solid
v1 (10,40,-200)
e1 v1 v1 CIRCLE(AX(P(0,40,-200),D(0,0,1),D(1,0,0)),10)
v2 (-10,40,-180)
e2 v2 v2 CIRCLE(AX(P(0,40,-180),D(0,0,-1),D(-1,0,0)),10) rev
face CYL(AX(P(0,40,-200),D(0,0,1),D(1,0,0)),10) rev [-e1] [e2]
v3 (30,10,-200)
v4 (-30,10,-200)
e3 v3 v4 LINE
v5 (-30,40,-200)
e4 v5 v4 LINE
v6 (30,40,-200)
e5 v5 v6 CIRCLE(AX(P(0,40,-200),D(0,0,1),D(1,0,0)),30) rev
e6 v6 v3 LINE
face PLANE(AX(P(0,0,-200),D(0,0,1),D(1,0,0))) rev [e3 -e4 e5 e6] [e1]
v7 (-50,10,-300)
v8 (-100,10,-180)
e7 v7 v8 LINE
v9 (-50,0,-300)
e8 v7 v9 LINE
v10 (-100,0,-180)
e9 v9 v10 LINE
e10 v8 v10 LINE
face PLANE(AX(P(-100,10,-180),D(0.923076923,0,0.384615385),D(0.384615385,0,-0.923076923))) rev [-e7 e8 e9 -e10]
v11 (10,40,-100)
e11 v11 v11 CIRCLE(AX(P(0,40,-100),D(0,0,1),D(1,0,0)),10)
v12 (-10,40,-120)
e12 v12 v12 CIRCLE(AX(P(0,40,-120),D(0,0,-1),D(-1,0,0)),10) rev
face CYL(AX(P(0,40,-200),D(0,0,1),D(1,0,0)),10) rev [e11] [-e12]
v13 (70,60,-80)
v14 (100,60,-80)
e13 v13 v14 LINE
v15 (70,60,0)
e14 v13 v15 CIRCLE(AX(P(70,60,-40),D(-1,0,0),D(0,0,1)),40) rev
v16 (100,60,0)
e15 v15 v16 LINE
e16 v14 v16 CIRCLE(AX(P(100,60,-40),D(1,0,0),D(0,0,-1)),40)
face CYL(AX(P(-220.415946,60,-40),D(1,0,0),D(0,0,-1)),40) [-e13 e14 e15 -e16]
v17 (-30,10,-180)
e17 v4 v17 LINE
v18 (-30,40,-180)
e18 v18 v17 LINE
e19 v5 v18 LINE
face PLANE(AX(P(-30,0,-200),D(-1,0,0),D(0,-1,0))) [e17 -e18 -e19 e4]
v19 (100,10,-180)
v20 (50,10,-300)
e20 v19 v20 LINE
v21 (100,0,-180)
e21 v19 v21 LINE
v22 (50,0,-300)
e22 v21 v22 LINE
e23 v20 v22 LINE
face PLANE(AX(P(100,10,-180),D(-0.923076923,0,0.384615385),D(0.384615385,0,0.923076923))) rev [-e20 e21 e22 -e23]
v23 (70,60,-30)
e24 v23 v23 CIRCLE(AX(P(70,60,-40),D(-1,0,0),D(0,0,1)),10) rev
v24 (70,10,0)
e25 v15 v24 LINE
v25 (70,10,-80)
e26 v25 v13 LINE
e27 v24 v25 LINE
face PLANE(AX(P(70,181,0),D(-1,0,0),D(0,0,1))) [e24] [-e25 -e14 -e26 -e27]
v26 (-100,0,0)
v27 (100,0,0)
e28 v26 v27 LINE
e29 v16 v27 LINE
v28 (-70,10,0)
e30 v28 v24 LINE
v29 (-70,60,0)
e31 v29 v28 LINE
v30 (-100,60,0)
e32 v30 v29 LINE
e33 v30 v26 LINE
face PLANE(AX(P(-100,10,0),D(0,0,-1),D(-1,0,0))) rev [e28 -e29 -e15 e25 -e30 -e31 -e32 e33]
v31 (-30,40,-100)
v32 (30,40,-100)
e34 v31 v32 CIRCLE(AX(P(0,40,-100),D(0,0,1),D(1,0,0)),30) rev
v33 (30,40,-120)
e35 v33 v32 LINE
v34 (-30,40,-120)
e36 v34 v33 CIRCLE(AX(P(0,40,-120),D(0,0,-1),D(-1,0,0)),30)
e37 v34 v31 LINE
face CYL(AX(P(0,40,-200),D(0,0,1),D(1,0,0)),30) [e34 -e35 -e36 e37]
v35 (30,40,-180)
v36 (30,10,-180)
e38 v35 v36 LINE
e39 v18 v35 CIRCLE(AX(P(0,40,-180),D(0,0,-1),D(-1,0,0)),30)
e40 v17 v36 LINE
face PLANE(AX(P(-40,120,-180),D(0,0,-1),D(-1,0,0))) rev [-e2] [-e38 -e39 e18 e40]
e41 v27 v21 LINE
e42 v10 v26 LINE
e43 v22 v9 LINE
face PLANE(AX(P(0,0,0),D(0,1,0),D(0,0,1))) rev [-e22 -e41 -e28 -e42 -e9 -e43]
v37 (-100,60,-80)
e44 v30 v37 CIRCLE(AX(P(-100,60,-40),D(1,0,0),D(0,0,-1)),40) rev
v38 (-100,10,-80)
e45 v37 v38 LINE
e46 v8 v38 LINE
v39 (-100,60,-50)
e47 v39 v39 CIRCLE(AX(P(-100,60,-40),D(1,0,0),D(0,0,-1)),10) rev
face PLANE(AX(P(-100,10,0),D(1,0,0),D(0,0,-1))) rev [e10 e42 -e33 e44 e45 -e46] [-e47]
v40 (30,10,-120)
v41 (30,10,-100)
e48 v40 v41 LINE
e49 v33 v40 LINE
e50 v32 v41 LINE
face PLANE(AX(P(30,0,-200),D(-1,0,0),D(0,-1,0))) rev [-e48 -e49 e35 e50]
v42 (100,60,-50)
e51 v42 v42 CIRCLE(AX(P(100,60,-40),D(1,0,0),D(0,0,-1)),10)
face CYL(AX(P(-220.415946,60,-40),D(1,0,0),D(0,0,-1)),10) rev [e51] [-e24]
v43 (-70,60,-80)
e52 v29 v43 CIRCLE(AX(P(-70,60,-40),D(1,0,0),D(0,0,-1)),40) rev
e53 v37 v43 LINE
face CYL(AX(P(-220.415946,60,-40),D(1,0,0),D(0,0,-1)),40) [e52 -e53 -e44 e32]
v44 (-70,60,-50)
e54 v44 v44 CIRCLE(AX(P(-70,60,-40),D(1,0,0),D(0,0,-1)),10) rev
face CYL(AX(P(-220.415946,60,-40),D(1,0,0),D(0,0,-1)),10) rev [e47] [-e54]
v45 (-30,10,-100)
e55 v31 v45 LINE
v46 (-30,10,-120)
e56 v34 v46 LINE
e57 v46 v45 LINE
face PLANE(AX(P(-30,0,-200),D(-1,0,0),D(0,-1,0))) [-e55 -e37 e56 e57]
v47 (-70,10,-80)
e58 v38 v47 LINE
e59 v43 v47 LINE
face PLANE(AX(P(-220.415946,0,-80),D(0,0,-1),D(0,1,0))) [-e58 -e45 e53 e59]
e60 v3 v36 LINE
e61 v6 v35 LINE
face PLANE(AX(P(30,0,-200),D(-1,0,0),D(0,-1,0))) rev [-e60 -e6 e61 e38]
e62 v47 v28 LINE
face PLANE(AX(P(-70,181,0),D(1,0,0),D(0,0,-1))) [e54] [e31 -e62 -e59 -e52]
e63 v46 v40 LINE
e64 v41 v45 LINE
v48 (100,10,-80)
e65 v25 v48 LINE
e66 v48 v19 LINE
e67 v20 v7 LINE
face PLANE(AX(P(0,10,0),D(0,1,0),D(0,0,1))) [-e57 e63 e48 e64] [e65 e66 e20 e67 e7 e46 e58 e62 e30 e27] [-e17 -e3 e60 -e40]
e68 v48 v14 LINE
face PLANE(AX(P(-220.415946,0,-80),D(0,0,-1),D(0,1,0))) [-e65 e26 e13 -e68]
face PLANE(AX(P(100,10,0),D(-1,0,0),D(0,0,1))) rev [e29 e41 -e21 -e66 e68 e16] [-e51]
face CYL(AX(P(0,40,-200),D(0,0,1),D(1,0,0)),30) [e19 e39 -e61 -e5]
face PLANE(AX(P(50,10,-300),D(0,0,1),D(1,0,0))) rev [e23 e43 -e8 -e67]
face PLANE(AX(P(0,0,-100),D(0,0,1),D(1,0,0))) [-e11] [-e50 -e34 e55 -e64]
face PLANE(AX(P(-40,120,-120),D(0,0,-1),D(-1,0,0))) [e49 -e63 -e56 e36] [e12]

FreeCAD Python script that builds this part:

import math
import FreeCAD as App
import Part
import Sketcher
from FreeCAD import Vector
Q = App.Units.Quantity


def add_polygon(sketch, points):
    """Adds a closed chain of lines whose ends are joined by coincident constraints."""
    first, n = sketch.GeometryCount, len(points)
    for a, b in zip(points, points[1:] + points[:1]):
        sketch.addGeometry(Part.LineSegment(App.Vector(*a, 0), App.Vector(*b, 0)), False)
    for i in range(n):
        sketch.addConstraint(Sketcher.Constraint("Coincident", first + i, 2, first + (i + 1) % n, 1))

doc = App.newDocument("Part")
params = doc.addObject("Spreadsheet::Sheet", "Params")
for row, (alias, value) in enumerate([
    ("sketch1_width", "200 mm"),
    ("sketch1_width2", "100 mm"),
    ("sketch1_height", "180 mm"),
    ("sketch1_length", "130 mm"),
    ("pad1_length", "10 mm"),
    ("sketch2_radius", "40 mm"),
    ("sketch2_radius2", "10 mm"),
    ("sketch2_width", "50 mm"),
    ("pad2_length", "200 mm"),
    ("sketch3_width", "140 mm"),
    ("sketch3_height", "100 mm"),
    ("pocket1_length", "171 mm"),
    ("sketch4_radius", "30 mm"),
    ("sketch4_radius2", "10 mm"),
    ("sketch4_height", "30 mm"),
    ("pad3_length", "100 mm"),
    ("sketch5_width", "80 mm"),
    ("sketch5_height", "60 mm"),
    ("pocket2_length", "110 mm"),
], start=1):
    params.set(f"A{row}", alias)
    params.set(f"B{row}", "=" + value)
    params.setAlias(f"B{row}", alias)

body = doc.addObject("PartDesign::Body", "Body")

# Sketch on XZ plane
sketch1 = doc.addObject("Sketcher::SketchObject", "Sketch")
body.addObject(sketch1)
sketch1.AttachmentSupport = (doc.XZ_Plane, [""])
sketch1.MapMode = "FlatFace"
add_polygon(sketch1, [(-100, 0), (100, 0), (100, -180), (50, -300), (-50, -300), (-100, -180)])  # lines 0-5
sketch1.addConstraint(Sketcher.Constraint("Horizontal", 0))
sketch1.addConstraint(Sketcher.Constraint("Vertical", 1))
sketch1.addConstraint(Sketcher.Constraint("Horizontal", 3))
sketch1.addConstraint(Sketcher.Constraint("Vertical", 5))
sketch1.addConstraint(Sketcher.Constraint("Symmetric", 0, 2, 5, 2, -1, 1))
sketch1.addConstraint(Sketcher.Constraint("Horizontal", 1, 2, 4, 2))
sketch1.addConstraint(Sketcher.Constraint("Equal", 2, 4))
sketch1.addConstraint(Sketcher.Constraint("DistanceX", 0, 1, 0, 2, Q("200 mm")))
sketch1.addConstraint(Sketcher.Constraint("DistanceX", 3, 2, 3, 1, Q("100 mm")))
sketch1.addConstraint(Sketcher.Constraint("DistanceY", 1, 2, 1, 1, Q("180 mm")))
sketch1.addConstraint(Sketcher.Constraint("Distance", 2, Q("130 mm")))
sketch1.setExpression("Constraints[13]", "Params.sketch1_width")
sketch1.setExpression("Constraints[14]", "Params.sketch1_width2")
sketch1.setExpression("Constraints[15]", "Params.sketch1_height")
sketch1.setExpression("Constraints[16]", "Params.sketch1_length")
pad1 = doc.addObject("PartDesign::Pad", "Pad")
body.addObject(pad1)
pad1.Profile = sketch1
pad1.setExpression("Length", "Params.pad1_length")
pad1.Reversed = True

# Sketch on YZ plane
sketch2 = doc.addObject("Sketcher::SketchObject", "Sketch001")
body.addObject(sketch2)
sketch2.AttachmentSupport = (doc.YZ_Plane, [""])
sketch2.MapMode = "FlatFace"
sketch2.AttachmentOffset = App.Placement(Vector(0, 0, 100), App.Rotation())
sketch2.addGeometry(Part.ArcOfCircle(Part.Circle(Vector(60, -40, 0), Vector(0, 0, 1), 40), math.radians(-90), math.radians(0)), False)
sketch2.addGeometry(Part.ArcOfCircle(Part.Circle(Vector(60, -40, 0), Vector(0, 0, 1), 40), math.radians(0), math.radians(90)), False)
sketch2.addGeometry(Part.LineSegment(Vector(60, 0, 0), Vector(10, 0, 0)), False)
sketch2.addGeometry(Part.LineSegment(Vector(10, 0, 0), Vector(10, -80, 0)), False)
sketch2.addGeometry(Part.LineSegment(Vector(10, -80, 0), Vector(60, -80, 0)), False)
sketch2.addGeometry(Part.ArcOfCircle(Part.Circle(Vector(60, -40, 0), Vector(0, 0, 1), 10), math.radians(-90), math.radians(0)), False)
sketch2.addGeometry(Part.ArcOfCircle(Part.Circle(Vector(60, -40, 0), Vector(0, 0, 1), 10), math.radians(180), math.radians(270)), False)
sketch2.addGeometry(Part.ArcOfCircle(Part.Circle(Vector(60, -40, 0), Vector(0, 0, 1), 10), math.radians(0), math.radians(180)), False)
sketch2.addConstraint(Sketcher.Constraint("Tangent", 0, 2, 1, 1))
sketch2.addConstraint(Sketcher.Constraint("Tangent", 1, 2, 2, 1))
sketch2.addConstraint(Sketcher.Constraint("Coincident", 2, 2, 3, 1))
sketch2.addConstraint(Sketcher.Constraint("Coincident", 3, 2, 4, 1))
sketch2.addConstraint(Sketcher.Constraint("Tangent", 4, 2, 0, 1))
sketch2.addConstraint(Sketcher.Constraint("Tangent", 5, 1, 6, 2))
sketch2.addConstraint(Sketcher.Constraint("Tangent", 6, 1, 7, 2))
sketch2.addConstraint(Sketcher.Constraint("Tangent", 7, 1, 5, 2))
sketch2.addConstraint(Sketcher.Constraint("Horizontal", 2))
sketch2.addConstraint(Sketcher.Constraint("Vertical", 3))
sketch2.addConstraint(Sketcher.Constraint("Horizontal", 4))
sketch2.addConstraint(Sketcher.Constraint("Coincident", 5, 3, 0, 3))
sketch2.addConstraint(Sketcher.Constraint("Equal", 0, 1))
sketch2.addConstraint(Sketcher.Constraint("PointOnObject", 1, 2, -1))
sketch2.addConstraint(Sketcher.Constraint("Horizontal", 7, 3, 0, 2))
sketch2.addConstraint(Sketcher.Constraint("Horizontal", 0, 2, 6, 1))
sketch2.addConstraint(Sketcher.Constraint("Horizontal", 6, 1, 7, 1))
sketch2.addConstraint(Sketcher.Constraint("Vertical", 4, 2, 5, 1))
sketch2.addConstraint(Sketcher.Constraint("Radius", 0, Q("40 mm")))
sketch2.addConstraint(Sketcher.Constraint("Radius", 5, Q("10 mm")))
sketch2.addConstraint(Sketcher.Constraint("DistanceX", 2, 2, 2, 1, Q("50 mm")))
sketch2.addConstraint(Sketcher.Constraint("DistanceX", -1, 1, 0, 3, Q("60 mm")))
sketch2.setExpression("Constraints[18]", "Params.sketch2_radius")
sketch2.setExpression("Constraints[19]", "Params.sketch2_radius2")
sketch2.setExpression("Constraints[20]", "Params.sketch2_width")
pad2 = doc.addObject("PartDesign::Pad", "Pad001")
body.addObject(pad2)
pad2.Profile = sketch2
pad2.setExpression("Length", "Params.pad2_length")
pad2.Reversed = True

# Sketch on XZ plane
sketch3 = doc.addObject("Sketcher::SketchObject", "Sketch002")
body.addObject(sketch3)
sketch3.AttachmentSupport = (doc.XZ_Plane, [""])
sketch3.MapMode = "FlatFace"
sketch3.AttachmentOffset = App.Placement(Vector(0, 0, -10), App.Rotation())
add_polygon(sketch3, [(-70, -100), (-70, 0), (70, 0), (70, -100)])  # lines 0-3
sketch3.addConstraint(Sketcher.Constraint("Vertical", 0))
sketch3.addConstraint(Sketcher.Constraint("Horizontal", 1))
sketch3.addConstraint(Sketcher.Constraint("Vertical", 2))
sketch3.addConstraint(Sketcher.Constraint("Horizontal", 3))
sketch3.addConstraint(Sketcher.Constraint("Symmetric", 0, 2, 1, 2, -1, 1))
sketch3.addConstraint(Sketcher.Constraint("DistanceX", 1, 1, 1, 2, Q("140 mm")))
sketch3.addConstraint(Sketcher.Constraint("DistanceY", 0, 1, 0, 2, Q("100 mm")))
sketch3.setExpression("Constraints[9]", "Params.sketch3_width")
sketch3.setExpression("Constraints[10]", "Params.sketch3_height")
pocket1 = doc.addObject("PartDesign::Pocket", "Pocket")
body.addObject(pocket1)
pocket1.Profile = sketch3
pocket1.setExpression("Length", "Params.pocket1_length")

# Sketch on XY plane
sketch4 = doc.addObject("Sketcher::SketchObject", "Sketch003")
body.addObject(sketch4)
sketch4.AttachmentSupport = (doc.XY_Plane, [""])
sketch4.MapMode = "FlatFace"
sketch4.AttachmentOffset = App.Placement(Vector(0, 0, -100), App.Rotation())
sketch4.addGeometry(Part.LineSegment(Vector(30, 10, 0), Vector(30, 40, 0)), False)
sketch4.addGeometry(Part.ArcOfCircle(Part.Circle(Vector(0, 40, 0), Vector(0, 0, 1), 30), math.radians(0), math.radians(90)), False)
sketch4.addGeometry(Part.ArcOfCircle(Part.Circle(Vector(0, 40, 0), Vector(0, 0, 1), 30), math.radians(90), math.radians(180)), False)
sketch4.addGeometry(Part.LineSegment(Vector(-30, 40, 0), Vector(-30, 10, 0)), False)
sketch4.addGeometry(Part.LineSegment(Vector(-30, 10, 0), Vector(30, 10, 0)), False)
sketch4.addGeometry(Part.ArcOfCircle(Part.Circle(Vector(0, 40, 0), Vector(0, 0, 1), 10), math.radians(0), math.radians(90)), False)
sketch4.addGeometry(Part.ArcOfCircle(Part.Circle(Vector(0, 40, 0), Vector(0, 0, 1), 10), math.radians(-90), math.radians(0)), False)
sketch4.addGeometry(Part.ArcOfCircle(Part.Circle(Vector(0, 40, 0), Vector(0, 0, 1), 10), math.radians(90), math.radians(270)), False)
sketch4.addConstraint(Sketcher.Constraint("Tangent", 0, 2, 1, 1))
sketch4.addConstraint(Sketcher.Constraint("Tangent", 1, 2, 2, 1))
sketch4.addConstraint(Sketcher.Constraint("Tangent", 2, 2, 3, 1))
sketch4.addConstraint(Sketcher.Constraint("Coincident", 3, 2, 4, 1))
sketch4.addConstraint(Sketcher.Constraint("Coincident", 4, 2, 0, 1))
sketch4.addConstraint(Sketcher.Constraint("Tangent", 5, 1, 6, 2))
sketch4.addConstraint(Sketcher.Constraint("Tangent", 6, 1, 7, 2))
sketch4.addConstraint(Sketcher.Constraint("Tangent", 7, 1, 5, 2))
sketch4.addConstraint(Sketcher.Constraint("Vertical", 0))
sketch4.addConstraint(Sketcher.Constraint("Vertical", 3))
sketch4.addConstraint(Sketcher.Constraint("Horizontal", 4))
sketch4.addConstraint(Sketcher.Constraint("Coincident", 5, 3, 1, 3))
sketch4.addConstraint(Sketcher.Constraint("Equal", 1, 2))
sketch4.addConstraint(Sketcher.Constraint("PointOnObject", 1, 3, -2))
sketch4.addConstraint(Sketcher.Constraint("PointOnObject", 1, 2, -2))
sketch4.addConstraint(Sketcher.Constraint("PointOnObject", 6, 1, -2))
sketch4.addConstraint(Sketcher.Constraint("PointOnObject", 7, 1, -2))
sketch4.addConstraint(Sketcher.Constraint("Horizontal", 2, 2, 5, 1))
sketch4.addConstraint(Sketcher.Constraint("Radius", 1, Q("30 mm")))
sketch4.addConstraint(Sketcher.Constraint("Radius", 5, Q("10 mm")))
sketch4.addConstraint(Sketcher.Constraint("DistanceY", 0, 1, 0, 2, Q("30 mm")))
sketch4.addConstraint(Sketcher.Constraint("DistanceY", -1, 1, 1, 3, Q("40 mm")))
sketch4.setExpression("Constraints[18]", "Params.sketch4_radius")
sketch4.setExpression("Constraints[19]", "Params.sketch4_radius2")
sketch4.setExpression("Constraints[20]", "Params.sketch4_height")
pad3 = doc.addObject("PartDesign::Pad", "Pad002")
body.addObject(pad3)
pad3.Profile = sketch4
pad3.setExpression("Length", "Params.pad3_length")
pad3.Reversed = True

# Sketch on XZ plane
sketch5 = doc.addObject("Sketcher::SketchObject", "Sketch004")
body.addObject(sketch5)
sketch5.AttachmentSupport = (doc.XZ_Plane, [""])
sketch5.MapMode = "FlatFace"
sketch5.AttachmentOffset = App.Placement(Vector(0, 0, -10), App.Rotation())
add_polygon(sketch5, [(-40, -180), (-40, -120), (40, -120), (40, -180)])  # lines 0-3
sketch5.addConstraint(Sketcher.Constraint("Vertical", 0))
sketch5.addConstraint(Sketcher.Constraint("Horizontal", 1))
sketch5.addConstraint(Sketcher.Constraint("Vertical", 2))
sketch5.addConstraint(Sketcher.Constraint("Horizontal", 3))
sketch5.addConstraint(Sketcher.Constraint("DistanceX", 1, 1, 1, 2, Q("80 mm")))
sketch5.addConstraint(Sketcher.Constraint("DistanceY", 0, 1, 0, 2, Q("60 mm")))
sketch5.addConstraint(Sketcher.Constraint("DistanceX", 0, 2, -1, 1, Q("40 mm")))
sketch5.addConstraint(Sketcher.Constraint("DistanceY", 0, 2, -1, 1, Q("120 mm")))
sketch5.setExpression("Constraints[8]", "Params.sketch5_width")
sketch5.setExpression("Constraints[9]", "Params.sketch5_height")
pocket2 = doc.addObject("PartDesign::Pocket", "Pocket001")
body.addObject(pocket2)
pocket2.Profile = sketch5
pocket2.setExpression("Length", "Params.pocket2_length")

doc.recompute()
